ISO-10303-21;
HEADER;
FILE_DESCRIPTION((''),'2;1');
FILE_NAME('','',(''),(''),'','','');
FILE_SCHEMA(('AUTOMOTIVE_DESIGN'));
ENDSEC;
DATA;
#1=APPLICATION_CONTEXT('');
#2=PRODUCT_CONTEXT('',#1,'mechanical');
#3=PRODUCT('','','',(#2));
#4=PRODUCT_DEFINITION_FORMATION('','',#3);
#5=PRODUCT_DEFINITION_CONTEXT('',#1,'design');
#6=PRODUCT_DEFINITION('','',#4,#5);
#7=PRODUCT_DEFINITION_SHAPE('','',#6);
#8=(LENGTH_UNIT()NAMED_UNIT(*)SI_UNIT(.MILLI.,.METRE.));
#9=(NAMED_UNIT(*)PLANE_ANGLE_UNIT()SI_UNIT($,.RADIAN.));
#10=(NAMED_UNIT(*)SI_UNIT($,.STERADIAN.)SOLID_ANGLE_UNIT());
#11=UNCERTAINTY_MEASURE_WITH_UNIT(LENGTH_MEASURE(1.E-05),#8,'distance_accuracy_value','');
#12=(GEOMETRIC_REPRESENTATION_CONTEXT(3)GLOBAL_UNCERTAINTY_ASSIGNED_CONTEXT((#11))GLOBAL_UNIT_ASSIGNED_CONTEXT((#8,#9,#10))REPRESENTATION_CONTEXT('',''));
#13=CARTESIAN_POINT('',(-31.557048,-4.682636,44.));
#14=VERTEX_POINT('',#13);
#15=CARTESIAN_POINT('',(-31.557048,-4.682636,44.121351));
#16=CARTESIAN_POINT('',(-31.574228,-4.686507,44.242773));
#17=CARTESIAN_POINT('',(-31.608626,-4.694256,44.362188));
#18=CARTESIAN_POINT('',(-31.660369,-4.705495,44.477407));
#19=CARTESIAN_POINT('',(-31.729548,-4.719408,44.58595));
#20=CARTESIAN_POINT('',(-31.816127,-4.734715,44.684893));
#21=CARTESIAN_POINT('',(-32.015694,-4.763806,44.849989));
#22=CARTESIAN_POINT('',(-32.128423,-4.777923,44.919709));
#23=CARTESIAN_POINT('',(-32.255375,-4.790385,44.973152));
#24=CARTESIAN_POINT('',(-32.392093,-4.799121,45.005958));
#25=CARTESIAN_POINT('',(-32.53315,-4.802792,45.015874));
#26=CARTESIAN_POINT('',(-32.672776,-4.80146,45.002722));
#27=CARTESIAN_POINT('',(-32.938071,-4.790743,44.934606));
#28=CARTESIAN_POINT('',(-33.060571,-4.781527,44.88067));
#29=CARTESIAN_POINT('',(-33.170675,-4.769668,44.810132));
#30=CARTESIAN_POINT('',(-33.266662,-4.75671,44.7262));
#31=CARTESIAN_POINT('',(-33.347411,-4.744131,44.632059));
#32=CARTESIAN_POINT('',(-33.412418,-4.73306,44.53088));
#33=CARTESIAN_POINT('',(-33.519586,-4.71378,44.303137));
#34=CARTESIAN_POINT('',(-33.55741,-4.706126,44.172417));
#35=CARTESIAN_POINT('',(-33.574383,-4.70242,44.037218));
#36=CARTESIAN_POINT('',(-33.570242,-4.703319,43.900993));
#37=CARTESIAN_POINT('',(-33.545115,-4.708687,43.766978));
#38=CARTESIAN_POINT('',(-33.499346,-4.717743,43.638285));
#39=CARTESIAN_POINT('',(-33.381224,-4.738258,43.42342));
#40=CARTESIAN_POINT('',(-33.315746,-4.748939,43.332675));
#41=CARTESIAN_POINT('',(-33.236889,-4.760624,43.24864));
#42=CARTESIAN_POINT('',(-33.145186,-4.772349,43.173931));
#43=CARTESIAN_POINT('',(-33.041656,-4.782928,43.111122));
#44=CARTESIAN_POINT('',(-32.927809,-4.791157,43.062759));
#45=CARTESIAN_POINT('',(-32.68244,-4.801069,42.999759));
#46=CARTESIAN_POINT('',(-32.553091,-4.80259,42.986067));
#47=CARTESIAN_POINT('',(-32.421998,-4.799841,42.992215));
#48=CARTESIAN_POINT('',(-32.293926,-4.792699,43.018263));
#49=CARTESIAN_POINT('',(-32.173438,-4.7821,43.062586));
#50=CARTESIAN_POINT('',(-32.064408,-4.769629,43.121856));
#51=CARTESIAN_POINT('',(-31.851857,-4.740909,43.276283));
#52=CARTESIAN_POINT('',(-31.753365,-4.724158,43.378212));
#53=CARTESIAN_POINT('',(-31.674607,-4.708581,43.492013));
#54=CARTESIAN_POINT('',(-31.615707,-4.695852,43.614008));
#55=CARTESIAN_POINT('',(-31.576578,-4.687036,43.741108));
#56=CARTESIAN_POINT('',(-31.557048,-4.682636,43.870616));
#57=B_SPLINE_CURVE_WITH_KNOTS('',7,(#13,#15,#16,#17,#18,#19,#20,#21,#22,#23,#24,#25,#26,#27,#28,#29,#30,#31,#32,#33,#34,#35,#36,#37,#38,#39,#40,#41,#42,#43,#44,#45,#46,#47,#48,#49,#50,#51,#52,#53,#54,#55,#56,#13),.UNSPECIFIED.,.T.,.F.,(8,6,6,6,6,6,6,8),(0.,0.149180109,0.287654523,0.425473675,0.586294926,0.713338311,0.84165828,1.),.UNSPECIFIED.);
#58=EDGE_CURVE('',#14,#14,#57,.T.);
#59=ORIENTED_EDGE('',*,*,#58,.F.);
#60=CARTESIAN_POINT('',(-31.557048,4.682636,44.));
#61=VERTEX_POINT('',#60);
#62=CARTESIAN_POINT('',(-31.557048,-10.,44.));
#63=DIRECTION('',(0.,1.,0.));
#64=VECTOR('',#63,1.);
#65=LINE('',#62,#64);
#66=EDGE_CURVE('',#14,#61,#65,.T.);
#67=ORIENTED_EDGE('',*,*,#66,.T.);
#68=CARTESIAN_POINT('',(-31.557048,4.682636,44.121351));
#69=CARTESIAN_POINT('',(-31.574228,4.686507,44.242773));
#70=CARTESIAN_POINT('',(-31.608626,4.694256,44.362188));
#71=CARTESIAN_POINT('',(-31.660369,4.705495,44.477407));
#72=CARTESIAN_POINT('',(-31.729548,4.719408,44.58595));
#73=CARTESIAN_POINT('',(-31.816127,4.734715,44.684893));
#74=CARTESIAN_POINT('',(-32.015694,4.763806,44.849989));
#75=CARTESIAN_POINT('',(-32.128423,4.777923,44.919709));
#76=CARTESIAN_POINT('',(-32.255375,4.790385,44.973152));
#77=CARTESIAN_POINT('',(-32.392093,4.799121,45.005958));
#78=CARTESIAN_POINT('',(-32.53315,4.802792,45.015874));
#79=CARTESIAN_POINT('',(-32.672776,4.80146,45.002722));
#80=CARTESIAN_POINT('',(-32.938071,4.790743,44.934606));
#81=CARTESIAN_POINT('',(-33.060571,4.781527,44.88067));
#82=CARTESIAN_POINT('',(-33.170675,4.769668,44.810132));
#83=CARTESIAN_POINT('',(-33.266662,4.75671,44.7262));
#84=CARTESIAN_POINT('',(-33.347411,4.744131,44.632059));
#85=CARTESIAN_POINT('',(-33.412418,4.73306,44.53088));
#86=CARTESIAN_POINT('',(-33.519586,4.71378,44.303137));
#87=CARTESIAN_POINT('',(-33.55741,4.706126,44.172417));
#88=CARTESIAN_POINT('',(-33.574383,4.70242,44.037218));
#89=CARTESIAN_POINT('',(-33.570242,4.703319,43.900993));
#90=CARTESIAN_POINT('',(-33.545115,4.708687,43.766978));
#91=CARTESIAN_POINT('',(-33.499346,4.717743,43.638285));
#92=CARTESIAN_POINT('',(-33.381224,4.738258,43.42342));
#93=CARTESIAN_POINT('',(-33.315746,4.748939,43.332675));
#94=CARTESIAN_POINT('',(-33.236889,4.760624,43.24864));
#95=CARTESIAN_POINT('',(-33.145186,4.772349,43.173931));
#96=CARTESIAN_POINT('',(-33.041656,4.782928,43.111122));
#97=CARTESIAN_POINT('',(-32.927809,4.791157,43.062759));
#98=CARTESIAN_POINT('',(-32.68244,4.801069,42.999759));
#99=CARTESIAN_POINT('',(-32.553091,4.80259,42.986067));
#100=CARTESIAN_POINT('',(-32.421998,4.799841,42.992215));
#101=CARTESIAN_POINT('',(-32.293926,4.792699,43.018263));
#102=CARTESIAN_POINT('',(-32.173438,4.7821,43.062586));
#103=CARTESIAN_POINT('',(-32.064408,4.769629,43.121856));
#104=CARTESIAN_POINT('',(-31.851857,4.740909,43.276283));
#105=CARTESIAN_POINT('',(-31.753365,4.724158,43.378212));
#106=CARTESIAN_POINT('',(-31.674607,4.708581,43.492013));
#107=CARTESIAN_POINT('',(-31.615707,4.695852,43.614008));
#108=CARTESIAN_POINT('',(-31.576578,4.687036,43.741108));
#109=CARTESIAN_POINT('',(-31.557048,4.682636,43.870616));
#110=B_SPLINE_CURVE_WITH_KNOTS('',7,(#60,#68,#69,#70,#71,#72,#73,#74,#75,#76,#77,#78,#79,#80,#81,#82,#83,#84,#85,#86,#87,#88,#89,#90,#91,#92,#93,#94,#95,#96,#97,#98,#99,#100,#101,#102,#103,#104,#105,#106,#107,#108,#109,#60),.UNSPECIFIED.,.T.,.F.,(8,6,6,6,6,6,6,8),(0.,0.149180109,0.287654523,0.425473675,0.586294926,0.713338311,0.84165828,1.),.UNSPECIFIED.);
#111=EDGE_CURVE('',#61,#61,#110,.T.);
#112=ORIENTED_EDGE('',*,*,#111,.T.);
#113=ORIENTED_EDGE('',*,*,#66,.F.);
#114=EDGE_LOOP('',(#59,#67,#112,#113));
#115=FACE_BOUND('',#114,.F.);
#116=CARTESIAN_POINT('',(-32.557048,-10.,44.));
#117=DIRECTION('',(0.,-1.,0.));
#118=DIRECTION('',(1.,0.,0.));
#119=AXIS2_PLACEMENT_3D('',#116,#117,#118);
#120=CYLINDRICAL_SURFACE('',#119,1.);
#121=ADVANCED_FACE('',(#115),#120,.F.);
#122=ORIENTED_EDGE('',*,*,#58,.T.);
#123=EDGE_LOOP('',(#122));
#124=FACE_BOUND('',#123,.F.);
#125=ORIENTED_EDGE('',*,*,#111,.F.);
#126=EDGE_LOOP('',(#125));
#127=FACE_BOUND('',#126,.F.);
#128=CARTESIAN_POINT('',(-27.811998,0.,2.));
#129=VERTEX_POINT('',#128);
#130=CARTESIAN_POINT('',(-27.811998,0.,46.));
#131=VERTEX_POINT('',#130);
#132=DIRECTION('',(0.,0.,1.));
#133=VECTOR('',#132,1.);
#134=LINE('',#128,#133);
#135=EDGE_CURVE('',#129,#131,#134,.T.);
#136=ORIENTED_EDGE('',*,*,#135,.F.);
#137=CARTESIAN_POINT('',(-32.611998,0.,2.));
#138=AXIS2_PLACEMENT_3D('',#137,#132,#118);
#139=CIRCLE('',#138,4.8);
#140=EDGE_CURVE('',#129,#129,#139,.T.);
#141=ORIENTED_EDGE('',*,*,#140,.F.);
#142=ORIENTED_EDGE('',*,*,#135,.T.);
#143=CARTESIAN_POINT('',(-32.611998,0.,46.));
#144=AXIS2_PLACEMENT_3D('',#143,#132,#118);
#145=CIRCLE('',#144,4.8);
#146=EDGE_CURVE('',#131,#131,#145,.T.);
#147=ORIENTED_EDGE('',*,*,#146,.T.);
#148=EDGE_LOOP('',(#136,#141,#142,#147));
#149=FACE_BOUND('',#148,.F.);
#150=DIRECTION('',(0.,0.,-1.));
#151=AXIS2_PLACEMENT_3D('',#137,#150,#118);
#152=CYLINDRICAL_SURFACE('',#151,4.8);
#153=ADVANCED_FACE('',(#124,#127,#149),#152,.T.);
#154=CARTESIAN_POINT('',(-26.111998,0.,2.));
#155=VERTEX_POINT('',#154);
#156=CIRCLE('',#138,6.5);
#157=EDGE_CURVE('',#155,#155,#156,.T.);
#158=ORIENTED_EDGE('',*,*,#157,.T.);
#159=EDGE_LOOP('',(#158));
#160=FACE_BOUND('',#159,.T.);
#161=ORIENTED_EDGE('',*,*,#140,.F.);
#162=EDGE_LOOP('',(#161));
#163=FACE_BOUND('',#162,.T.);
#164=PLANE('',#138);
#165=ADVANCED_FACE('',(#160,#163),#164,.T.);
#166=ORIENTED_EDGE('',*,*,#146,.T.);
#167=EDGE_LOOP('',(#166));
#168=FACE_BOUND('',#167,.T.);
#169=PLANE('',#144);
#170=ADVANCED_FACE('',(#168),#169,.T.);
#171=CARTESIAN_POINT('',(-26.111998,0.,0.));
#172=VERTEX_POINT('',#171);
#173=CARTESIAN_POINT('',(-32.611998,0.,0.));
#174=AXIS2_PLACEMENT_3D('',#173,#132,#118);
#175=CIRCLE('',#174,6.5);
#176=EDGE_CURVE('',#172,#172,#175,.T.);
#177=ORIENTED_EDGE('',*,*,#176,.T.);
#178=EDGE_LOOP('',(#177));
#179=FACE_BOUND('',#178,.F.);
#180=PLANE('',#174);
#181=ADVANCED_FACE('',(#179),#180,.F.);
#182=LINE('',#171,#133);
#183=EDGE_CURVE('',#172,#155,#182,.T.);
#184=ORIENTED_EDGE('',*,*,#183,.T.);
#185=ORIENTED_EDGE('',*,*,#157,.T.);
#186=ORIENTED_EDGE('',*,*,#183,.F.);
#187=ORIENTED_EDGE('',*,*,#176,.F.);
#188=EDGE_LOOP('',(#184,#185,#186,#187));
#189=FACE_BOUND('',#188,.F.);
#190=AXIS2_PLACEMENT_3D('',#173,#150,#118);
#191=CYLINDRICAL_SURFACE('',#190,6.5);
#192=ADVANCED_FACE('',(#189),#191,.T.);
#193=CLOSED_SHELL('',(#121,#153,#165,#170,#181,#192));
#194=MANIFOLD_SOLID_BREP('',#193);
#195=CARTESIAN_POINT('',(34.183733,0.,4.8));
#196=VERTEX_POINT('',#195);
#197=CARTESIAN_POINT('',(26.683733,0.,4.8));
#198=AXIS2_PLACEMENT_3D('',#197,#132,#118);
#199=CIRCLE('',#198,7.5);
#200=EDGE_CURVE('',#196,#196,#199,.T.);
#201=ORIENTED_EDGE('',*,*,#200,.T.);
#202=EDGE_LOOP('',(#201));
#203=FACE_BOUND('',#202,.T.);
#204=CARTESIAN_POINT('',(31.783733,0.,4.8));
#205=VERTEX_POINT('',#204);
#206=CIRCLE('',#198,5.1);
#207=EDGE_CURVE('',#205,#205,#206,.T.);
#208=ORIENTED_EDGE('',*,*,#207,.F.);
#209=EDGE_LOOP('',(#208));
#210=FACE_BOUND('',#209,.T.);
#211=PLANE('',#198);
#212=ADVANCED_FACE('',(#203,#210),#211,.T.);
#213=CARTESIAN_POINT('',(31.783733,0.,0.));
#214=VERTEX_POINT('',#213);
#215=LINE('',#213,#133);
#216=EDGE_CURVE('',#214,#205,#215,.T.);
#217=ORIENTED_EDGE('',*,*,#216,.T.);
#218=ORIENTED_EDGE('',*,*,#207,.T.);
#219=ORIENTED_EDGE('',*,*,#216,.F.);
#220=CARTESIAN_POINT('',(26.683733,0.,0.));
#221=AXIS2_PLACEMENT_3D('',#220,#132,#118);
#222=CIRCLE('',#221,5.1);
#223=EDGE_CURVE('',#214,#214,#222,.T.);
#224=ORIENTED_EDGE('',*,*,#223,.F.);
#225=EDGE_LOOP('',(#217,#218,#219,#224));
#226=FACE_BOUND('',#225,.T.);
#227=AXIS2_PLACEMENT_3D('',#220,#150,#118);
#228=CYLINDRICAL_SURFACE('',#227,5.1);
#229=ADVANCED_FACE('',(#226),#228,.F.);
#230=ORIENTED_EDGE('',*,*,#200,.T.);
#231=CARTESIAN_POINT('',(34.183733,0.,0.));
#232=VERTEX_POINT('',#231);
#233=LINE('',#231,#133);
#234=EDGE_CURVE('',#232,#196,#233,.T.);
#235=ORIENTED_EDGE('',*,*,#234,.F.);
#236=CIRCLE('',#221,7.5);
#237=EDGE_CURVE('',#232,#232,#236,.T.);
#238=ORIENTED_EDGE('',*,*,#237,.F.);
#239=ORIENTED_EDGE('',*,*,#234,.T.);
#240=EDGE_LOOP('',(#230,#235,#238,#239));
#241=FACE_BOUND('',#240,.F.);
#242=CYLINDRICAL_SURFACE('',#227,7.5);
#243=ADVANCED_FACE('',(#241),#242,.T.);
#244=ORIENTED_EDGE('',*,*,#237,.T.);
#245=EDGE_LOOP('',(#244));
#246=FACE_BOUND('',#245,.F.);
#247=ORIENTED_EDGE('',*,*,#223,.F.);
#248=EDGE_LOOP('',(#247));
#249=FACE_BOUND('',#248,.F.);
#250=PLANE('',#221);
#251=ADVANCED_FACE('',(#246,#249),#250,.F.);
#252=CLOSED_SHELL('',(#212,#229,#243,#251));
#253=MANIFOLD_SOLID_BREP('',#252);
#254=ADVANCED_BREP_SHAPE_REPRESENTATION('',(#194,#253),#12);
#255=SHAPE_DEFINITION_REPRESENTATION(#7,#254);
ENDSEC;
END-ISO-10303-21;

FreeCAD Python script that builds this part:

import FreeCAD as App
import Part
import Sketcher

doc = App.newDocument("Part")
body = doc.addObject("PartDesign::Body", "Body")

# Sketch on XY plane
sketch1 = body.newObject("Sketcher::SketchObject", "Sketch")
sketch1.AttachmentSupport = (doc.getObject("XY_Plane"), [""])
sketch1.MapMode = "FlatFace"
sketch1.addGeometry(Part.Circle(App.Vector(26.683733, 0, 0), App.Vector(0, 0, 1), 7.5), False)
sketch1.addGeometry(Part.Circle(App.Vector(26.683733, 0, 0), App.Vector(0, 0, 1), 5.1), False)
sketch1.addConstraint(Sketcher.Constraint("Coincident", 1, 3, 0, 3))
sketch1.addConstraint(Sketcher.Constraint("PointOnObject", 0, 3, -1))
sketch1.addConstraint(Sketcher.Constraint("Diameter", 0, 15.0))
sketch1.addConstraint(Sketcher.Constraint("Diameter", 1, 10.2))
sketch1.addConstraint(Sketcher.Constraint("DistanceX", -1, 1, 0, 3, 26.683733))
pad1 = body.newObject("PartDesign::Pad", "Pad")
pad1.Profile = sketch1
pad1.Length = 4.8
body2 = doc.addObject("PartDesign::Body", "Body001")

# Sketch on XY plane
sketch2 = body2.newObject("Sketcher::SketchObject", "Sketch001")
sketch2.AttachmentSupport = (doc.getObject("XY_Plane001"), [""])
sketch2.MapMode = "FlatFace"
sketch2.addGeometry(Part.Circle(App.Vector(-32.611998, 0, 0), App.Vector(0, 0, 1), 6.5), False)
sketch2.addConstraint(Sketcher.Constraint("PointOnObject", 0, 3, -1))
sketch2.addConstraint(Sketcher.Constraint("Diameter", 0, 13.0))
sketch2.addConstraint(Sketcher.Constraint("DistanceX", 0, 3, -1, 1, 32.611998))
pad2 = body2.newObject("PartDesign::Pad", "Pad001")
pad2.Profile = sketch2
pad2.Length = 2

# Sketch on XY plane
sketch3 = body2.newObject("Sketcher::SketchObject", "Sketch002")
sketch3.AttachmentSupport = (doc.getObject("XY_Plane001"), [""])
sketch3.MapMode = "FlatFace"
sketch3.AttachmentOffset = App.Placement(App.Vector(0, 0, 2), App.Rotation())
sketch3.addGeometry(Part.Circle(App.Vector(-32.611998, 0, 0), App.Vector(0, 0, 1), 4.8), False)
sketch3.addConstraint(Sketcher.Constraint("PointOnObject", 0, 3, -1))
sketch3.addConstraint(Sketcher.Constraint("Diameter", 0, 9.6))
sketch3.addConstraint(Sketcher.Constraint("DistanceX", 0, 3, -1, 1, 32.611998))
pad3 = body2.newObject("PartDesign::Pad", "Pad002")
pad3.Profile = sketch3
pad3.Length = 44

# Sketch on XZ plane
sketch4 = body2.newObject("Sketcher::SketchObject", "Sketch003")
sketch4.AttachmentSupport = (doc.getObject("XZ_Plane001"), [""])
sketch4.MapMode = "FlatFace"
sketch4.AttachmentOffset = App.Placement(App.Vector(0, 0, 10), App.Rotation())
sketch4.addGeometry(Part.Circle(App.Vector(-32.557048, 44, 0), App.Vector(0, 0, 1), 1), False)
sketch4.addConstraint(Sketcher.Constraint("Diameter", 0, 2.0))
sketch4.addConstraint(Sketcher.Constraint("DistanceY", -1, 1, 0, 3, 44.0))
sketch4.addConstraint(Sketcher.Constraint("DistanceX", 0, 3, -1, 1, 32.557048))
pocket1 = body2.newObject("PartDesign::Pocket", "Pocket")
pocket1.Profile = sketch4
pocket1.Length = 63

doc.recompute()
